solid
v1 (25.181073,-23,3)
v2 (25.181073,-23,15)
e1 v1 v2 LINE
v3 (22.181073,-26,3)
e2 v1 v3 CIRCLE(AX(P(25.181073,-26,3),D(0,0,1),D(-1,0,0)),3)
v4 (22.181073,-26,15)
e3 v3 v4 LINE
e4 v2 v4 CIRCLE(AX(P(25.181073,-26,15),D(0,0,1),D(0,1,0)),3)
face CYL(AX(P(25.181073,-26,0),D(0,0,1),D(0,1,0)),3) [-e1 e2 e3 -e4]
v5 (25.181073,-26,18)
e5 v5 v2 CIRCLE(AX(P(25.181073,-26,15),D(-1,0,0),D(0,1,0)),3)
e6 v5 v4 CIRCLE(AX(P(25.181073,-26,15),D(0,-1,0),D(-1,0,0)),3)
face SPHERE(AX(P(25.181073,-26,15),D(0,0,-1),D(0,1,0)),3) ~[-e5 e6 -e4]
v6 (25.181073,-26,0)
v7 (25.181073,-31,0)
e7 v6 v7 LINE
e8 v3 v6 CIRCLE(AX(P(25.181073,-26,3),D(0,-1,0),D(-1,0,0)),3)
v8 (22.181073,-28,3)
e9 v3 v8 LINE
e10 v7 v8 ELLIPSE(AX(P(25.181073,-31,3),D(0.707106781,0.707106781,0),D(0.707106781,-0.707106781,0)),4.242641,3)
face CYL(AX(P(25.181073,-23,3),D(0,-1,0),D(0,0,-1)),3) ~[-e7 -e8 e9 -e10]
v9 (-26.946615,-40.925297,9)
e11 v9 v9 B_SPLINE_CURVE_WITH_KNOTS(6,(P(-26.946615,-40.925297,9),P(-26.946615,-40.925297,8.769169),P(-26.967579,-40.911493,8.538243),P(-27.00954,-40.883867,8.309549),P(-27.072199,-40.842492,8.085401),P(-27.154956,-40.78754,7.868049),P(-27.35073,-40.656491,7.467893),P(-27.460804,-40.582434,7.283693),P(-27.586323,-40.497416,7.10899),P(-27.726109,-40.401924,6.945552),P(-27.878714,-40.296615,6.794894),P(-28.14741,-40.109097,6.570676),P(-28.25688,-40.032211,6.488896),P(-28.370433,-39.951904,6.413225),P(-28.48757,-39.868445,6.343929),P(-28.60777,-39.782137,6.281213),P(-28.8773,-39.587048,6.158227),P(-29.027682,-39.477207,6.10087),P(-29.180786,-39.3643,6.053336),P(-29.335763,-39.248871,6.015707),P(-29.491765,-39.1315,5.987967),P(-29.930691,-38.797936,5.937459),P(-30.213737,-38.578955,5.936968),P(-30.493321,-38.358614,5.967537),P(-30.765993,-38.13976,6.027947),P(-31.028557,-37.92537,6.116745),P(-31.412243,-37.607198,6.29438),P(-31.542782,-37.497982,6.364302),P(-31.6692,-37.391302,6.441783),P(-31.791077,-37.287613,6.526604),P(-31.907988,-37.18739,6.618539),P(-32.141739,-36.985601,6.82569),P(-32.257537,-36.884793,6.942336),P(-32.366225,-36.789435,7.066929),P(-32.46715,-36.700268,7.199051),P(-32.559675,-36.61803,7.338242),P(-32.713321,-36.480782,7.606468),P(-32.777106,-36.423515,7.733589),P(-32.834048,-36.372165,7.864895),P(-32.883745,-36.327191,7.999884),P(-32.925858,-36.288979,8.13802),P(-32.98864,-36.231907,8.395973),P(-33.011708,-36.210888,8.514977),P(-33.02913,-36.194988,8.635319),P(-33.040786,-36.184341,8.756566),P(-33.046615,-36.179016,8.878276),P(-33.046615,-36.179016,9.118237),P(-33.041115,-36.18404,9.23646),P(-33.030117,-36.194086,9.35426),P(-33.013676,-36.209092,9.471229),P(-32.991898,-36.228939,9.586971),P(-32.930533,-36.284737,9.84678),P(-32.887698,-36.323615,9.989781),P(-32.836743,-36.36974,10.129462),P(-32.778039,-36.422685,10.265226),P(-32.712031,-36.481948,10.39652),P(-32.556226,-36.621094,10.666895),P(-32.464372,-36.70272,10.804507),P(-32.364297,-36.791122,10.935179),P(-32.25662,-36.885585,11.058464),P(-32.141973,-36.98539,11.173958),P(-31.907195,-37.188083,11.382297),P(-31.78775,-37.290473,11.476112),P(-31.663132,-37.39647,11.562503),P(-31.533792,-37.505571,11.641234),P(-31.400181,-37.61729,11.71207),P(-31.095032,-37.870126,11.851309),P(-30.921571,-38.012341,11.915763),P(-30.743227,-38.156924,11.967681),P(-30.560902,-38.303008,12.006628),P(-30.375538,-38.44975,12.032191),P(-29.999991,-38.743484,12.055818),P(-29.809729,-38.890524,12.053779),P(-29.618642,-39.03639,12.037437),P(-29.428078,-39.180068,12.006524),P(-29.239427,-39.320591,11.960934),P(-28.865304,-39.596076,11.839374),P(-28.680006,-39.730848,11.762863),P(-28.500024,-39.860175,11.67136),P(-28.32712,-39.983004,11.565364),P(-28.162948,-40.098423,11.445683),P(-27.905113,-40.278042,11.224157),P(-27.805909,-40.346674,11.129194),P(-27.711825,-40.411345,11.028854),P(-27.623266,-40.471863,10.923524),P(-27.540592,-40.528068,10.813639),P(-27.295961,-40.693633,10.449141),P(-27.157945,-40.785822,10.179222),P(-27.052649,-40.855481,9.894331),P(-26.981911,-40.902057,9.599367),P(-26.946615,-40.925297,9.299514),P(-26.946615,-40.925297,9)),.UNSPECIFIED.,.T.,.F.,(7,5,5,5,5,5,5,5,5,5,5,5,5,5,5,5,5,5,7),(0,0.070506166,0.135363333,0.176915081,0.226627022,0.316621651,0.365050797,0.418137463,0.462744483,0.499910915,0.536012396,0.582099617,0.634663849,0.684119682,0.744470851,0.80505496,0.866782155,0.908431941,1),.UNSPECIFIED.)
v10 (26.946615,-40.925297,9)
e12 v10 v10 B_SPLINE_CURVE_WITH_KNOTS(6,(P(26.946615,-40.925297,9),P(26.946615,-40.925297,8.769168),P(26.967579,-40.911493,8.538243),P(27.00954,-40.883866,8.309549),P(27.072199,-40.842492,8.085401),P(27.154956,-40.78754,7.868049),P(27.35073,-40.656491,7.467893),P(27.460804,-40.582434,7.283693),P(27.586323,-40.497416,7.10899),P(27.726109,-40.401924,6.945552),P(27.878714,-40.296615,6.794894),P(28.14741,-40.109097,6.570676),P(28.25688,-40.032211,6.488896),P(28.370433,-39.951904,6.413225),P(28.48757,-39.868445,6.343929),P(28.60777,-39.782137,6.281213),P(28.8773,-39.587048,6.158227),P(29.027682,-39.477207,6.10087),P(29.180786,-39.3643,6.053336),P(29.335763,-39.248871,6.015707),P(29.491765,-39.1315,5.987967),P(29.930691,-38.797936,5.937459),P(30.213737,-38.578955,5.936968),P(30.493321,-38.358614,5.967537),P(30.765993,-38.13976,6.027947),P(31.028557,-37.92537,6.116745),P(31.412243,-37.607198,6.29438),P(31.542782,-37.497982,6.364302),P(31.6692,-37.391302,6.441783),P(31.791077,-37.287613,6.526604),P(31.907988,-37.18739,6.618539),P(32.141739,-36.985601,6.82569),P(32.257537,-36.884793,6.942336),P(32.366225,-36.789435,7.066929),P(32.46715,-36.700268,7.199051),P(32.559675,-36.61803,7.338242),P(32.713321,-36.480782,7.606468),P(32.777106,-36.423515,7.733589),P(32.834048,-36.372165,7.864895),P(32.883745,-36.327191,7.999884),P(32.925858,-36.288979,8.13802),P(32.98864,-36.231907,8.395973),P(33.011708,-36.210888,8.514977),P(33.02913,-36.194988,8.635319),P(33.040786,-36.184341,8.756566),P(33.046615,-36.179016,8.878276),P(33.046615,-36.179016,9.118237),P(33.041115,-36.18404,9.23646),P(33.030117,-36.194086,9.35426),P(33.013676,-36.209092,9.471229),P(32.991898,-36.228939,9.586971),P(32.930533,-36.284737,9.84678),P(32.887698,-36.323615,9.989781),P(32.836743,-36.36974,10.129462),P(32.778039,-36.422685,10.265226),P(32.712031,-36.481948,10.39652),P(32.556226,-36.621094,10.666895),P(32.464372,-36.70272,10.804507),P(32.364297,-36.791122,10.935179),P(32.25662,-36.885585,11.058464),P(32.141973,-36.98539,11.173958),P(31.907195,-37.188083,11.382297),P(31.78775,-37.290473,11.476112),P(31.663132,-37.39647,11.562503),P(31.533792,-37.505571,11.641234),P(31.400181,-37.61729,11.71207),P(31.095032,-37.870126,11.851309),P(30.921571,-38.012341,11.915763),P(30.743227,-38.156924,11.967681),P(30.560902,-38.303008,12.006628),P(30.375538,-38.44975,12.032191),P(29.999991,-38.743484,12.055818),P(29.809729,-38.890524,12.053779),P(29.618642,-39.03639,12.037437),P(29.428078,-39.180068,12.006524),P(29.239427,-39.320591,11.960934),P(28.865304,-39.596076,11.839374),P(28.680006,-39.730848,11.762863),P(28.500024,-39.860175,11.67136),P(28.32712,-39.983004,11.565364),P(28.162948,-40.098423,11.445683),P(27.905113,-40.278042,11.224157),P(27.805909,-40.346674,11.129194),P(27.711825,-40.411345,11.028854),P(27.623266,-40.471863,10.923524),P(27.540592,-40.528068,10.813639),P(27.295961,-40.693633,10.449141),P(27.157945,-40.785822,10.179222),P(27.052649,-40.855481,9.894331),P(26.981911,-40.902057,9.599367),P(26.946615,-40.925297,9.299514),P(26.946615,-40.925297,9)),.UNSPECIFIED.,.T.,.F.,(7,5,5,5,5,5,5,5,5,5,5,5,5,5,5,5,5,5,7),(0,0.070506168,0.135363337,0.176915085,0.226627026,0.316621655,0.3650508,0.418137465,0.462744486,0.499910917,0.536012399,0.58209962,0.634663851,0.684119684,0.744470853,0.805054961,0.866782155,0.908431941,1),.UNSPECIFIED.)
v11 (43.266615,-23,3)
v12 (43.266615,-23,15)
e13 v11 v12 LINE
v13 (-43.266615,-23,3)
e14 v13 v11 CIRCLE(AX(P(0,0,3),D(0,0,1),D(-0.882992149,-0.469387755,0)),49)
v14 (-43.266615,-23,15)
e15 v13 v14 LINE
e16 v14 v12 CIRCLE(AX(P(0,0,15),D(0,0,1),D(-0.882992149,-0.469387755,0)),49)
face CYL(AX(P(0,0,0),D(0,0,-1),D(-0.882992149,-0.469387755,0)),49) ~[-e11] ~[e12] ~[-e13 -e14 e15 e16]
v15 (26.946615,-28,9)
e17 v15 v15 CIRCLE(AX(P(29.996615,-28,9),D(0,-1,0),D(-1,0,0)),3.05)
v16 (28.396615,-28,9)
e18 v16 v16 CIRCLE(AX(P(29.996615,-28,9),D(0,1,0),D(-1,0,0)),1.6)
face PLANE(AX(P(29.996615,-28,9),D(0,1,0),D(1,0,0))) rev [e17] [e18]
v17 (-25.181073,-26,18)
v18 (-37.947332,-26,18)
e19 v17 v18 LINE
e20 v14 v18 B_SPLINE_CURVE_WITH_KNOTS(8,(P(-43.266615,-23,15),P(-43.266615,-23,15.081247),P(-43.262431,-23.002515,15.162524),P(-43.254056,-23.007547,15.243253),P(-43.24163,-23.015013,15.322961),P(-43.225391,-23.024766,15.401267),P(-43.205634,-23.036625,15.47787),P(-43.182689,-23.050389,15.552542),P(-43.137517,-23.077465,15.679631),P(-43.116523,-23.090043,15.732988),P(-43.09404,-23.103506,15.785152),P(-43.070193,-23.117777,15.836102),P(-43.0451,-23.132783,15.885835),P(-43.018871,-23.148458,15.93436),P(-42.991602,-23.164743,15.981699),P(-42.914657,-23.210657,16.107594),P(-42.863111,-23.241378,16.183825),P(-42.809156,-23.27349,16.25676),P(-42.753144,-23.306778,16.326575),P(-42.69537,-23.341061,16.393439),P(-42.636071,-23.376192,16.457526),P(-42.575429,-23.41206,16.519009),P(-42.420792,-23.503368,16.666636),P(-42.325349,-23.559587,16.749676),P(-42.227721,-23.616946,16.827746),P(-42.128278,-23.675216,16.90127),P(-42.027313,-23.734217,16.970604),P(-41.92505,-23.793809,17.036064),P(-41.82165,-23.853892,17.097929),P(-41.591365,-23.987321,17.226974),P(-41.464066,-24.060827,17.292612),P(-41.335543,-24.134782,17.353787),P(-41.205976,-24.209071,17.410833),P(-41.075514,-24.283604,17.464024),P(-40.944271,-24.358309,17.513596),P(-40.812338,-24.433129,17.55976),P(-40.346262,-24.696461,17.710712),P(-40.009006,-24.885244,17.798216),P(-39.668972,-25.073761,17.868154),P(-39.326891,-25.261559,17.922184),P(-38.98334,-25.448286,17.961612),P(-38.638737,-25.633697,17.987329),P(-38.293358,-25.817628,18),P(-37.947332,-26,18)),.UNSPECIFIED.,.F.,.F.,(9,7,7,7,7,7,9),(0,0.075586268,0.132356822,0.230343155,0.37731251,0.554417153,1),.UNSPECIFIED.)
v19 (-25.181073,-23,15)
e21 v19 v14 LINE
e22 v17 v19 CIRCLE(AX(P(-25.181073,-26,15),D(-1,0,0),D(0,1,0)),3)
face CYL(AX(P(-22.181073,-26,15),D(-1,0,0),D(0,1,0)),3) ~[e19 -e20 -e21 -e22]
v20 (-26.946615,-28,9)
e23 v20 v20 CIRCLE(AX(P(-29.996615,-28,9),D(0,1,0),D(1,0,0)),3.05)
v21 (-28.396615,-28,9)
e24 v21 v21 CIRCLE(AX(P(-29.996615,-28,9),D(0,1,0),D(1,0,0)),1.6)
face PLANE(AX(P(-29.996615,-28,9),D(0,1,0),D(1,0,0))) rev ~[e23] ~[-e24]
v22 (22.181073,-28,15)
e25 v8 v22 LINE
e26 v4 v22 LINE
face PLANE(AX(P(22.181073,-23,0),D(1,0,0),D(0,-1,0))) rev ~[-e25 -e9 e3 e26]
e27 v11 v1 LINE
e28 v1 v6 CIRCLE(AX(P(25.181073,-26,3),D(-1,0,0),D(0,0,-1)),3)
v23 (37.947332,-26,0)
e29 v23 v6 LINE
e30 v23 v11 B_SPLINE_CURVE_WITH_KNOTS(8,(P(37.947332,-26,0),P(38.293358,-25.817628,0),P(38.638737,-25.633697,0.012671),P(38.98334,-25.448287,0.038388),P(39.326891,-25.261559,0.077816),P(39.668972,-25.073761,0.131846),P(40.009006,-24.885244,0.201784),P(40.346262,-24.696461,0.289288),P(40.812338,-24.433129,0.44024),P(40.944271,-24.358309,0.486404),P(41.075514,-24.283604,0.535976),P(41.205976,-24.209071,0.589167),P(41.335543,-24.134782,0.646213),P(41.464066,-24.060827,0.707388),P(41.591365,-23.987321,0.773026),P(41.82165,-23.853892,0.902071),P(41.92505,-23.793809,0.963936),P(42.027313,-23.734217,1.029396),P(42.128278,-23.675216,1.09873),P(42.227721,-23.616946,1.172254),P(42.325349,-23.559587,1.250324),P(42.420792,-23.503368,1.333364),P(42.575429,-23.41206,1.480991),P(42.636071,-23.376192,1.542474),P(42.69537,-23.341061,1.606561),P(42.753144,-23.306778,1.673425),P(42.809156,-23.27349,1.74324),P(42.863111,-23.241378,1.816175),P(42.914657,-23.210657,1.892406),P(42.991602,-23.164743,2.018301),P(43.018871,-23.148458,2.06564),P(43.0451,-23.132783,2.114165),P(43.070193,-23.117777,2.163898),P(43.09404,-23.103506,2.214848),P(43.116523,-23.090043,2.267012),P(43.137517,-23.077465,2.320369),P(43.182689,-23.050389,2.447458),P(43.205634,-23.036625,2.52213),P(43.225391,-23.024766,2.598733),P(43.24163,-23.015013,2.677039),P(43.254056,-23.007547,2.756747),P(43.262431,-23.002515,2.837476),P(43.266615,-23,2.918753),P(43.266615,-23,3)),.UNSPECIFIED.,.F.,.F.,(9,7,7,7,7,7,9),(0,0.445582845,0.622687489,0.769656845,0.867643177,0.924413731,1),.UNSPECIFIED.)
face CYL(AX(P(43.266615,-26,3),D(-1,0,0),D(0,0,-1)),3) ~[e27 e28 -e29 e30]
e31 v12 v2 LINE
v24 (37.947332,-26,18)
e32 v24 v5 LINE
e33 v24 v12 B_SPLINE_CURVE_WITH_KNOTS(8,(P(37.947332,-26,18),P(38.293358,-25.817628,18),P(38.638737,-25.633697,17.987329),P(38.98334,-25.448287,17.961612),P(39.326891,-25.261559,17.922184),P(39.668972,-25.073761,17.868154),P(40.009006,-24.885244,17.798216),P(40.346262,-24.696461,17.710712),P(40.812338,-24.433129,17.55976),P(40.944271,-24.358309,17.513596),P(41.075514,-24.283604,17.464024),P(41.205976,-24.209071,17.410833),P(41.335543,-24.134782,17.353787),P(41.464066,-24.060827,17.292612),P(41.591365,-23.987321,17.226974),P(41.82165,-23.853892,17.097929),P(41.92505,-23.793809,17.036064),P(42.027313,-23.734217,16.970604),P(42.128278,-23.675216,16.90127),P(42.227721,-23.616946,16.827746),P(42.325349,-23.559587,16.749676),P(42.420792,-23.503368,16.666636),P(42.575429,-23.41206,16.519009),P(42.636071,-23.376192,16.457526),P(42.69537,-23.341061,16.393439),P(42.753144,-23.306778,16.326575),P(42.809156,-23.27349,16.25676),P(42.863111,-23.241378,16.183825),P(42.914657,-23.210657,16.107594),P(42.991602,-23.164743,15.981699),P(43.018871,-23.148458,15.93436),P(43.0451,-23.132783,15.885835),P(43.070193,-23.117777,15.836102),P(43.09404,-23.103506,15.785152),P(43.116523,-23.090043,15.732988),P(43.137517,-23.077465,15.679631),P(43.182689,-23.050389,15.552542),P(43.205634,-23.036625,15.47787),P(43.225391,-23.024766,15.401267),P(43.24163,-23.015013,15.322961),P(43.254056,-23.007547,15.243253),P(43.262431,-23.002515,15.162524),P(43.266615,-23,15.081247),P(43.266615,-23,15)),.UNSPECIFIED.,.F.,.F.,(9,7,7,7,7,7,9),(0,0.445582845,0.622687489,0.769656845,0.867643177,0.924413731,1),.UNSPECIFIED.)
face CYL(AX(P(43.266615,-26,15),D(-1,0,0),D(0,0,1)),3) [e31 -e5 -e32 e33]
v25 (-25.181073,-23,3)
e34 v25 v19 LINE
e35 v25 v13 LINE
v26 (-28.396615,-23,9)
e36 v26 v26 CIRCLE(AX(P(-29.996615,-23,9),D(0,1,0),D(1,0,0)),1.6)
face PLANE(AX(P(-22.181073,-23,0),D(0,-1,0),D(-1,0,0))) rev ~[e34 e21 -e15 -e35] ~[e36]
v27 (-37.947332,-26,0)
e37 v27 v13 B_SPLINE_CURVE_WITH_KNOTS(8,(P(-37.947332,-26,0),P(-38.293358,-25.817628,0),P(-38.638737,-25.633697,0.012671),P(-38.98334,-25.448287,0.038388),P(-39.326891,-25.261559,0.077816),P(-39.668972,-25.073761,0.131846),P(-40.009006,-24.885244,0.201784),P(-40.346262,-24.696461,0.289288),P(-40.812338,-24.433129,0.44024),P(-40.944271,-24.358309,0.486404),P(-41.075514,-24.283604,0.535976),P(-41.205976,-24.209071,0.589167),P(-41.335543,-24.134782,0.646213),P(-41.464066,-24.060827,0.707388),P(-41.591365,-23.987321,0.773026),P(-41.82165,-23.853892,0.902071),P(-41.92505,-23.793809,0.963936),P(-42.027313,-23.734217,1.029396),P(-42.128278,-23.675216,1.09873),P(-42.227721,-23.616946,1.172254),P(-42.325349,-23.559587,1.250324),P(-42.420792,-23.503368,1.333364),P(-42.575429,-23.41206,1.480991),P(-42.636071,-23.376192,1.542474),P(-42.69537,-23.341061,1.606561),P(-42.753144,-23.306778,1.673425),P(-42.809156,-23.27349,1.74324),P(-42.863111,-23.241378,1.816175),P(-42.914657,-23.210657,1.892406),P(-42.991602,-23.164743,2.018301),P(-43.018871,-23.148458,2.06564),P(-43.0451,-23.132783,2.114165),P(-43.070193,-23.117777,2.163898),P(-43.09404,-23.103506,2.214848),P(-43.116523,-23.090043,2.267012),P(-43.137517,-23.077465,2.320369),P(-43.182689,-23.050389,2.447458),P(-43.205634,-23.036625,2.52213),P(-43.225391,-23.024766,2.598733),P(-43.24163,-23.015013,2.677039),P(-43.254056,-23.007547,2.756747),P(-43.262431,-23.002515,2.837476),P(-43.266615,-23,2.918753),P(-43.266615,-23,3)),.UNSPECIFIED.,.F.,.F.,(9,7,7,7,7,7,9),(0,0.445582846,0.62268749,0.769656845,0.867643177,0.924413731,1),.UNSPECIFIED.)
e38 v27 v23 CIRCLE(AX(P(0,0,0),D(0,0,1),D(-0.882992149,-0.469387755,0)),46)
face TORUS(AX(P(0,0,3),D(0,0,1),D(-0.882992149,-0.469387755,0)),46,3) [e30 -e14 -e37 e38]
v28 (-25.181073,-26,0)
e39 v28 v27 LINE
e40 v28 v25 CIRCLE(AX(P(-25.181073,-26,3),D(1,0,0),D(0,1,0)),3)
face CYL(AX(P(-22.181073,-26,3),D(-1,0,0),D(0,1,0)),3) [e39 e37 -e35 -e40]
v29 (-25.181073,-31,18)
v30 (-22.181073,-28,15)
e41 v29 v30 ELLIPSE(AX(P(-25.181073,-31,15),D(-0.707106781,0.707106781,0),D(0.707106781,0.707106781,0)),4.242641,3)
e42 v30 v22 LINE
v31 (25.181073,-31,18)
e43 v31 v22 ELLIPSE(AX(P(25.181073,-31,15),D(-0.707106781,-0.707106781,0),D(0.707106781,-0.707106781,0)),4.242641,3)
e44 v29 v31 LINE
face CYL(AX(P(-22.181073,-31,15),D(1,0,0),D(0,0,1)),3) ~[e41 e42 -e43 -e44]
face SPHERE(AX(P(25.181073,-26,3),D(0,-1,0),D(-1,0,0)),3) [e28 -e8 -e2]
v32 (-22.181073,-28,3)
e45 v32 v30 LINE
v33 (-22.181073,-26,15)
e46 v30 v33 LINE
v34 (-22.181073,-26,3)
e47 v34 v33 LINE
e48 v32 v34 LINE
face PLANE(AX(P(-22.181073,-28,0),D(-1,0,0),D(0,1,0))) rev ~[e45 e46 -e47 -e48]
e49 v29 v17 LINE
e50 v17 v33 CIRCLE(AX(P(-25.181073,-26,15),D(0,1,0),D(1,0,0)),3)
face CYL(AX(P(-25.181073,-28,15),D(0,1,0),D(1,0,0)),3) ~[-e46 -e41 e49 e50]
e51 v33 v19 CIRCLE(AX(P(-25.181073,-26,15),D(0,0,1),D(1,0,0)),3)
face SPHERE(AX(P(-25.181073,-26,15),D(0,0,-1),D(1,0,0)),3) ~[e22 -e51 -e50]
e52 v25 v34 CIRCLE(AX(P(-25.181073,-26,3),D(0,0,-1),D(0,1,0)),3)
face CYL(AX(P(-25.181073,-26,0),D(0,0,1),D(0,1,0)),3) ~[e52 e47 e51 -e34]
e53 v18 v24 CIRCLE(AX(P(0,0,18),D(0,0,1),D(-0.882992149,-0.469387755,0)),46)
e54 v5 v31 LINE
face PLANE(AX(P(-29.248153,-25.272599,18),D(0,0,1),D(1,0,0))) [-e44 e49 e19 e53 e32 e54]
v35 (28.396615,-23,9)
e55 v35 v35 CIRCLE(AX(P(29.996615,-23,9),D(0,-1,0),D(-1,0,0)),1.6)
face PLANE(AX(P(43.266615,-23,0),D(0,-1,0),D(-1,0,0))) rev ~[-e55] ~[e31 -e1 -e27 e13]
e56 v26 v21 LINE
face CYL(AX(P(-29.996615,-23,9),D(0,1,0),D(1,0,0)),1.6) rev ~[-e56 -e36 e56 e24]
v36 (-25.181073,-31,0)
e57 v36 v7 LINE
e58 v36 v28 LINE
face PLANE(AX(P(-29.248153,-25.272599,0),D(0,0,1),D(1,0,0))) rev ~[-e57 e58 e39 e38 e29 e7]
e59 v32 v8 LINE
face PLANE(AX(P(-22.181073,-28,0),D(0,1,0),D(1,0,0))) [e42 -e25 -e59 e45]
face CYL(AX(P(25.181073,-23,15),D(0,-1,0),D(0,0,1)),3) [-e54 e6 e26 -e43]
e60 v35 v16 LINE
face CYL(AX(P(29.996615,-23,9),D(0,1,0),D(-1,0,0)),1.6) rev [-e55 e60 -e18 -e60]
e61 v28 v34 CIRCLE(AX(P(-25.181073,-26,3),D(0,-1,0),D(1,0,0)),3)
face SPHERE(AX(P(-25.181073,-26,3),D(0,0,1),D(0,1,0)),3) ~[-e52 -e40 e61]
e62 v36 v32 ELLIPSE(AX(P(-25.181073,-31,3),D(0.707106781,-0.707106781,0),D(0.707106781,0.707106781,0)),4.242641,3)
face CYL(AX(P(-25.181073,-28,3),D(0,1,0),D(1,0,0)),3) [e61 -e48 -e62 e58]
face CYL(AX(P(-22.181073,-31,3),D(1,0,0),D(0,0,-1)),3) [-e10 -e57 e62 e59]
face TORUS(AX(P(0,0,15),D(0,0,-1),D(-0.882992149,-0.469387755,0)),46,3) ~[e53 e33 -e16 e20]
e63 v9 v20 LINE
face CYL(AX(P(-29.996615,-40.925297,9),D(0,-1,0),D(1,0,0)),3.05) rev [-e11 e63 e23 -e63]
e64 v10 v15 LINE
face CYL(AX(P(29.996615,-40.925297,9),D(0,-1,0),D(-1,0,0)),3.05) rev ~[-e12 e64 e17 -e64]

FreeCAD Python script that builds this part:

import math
import FreeCAD as App
import Part
import Sketcher


def edges_at(feature, points):
    """Names of the edges that pass closest to the given points."""
    edges = feature.Shape.Edges
    near = lambda p: min(range(len(edges)), key=lambda i: edges[i].distToShape(Part.Vertex(*p))[0])
    return sorted({f"Edge{near(p) + 1}" for p in points})

doc = App.newDocument("Part")
body = doc.addObject("PartDesign::Body", "Body")

sketch1 = body.newObject("Sketcher::SketchObject", "Sketch")
sketch1.AttachmentSupport = (doc.getObject("XY_Plane"), [""])
sketch1.MapMode = "FlatFace"
sketch1.addGeometry([
    Part.LineSegment(App.Vector(-22, -23, 0), App.Vector(-43, -23, 0)),
    Part.ArcOfCircle(Part.Circle(App.Vector(0, 0, 0), App.Vector(0, 0, 1), 49), math.radians(-152), math.radians(-28)),
    Part.LineSegment(App.Vector(43, -23, 0), App.Vector(22, -23, 0)),
    Part.LineSegment(App.Vector(22, -23, 0), App.Vector(22, -28, 0)),
    Part.LineSegment(App.Vector(22, -28, 0), App.Vector(-22, -28, 0)),
    Part.LineSegment(App.Vector(-22, -28, 0), App.Vector(-22, -23, 0)),
], False)
sketch1.addConstraint([
    Sketcher.Constraint("Coincident", 0, 2, 1, 1),
    Sketcher.Constraint("Coincident", 1, 2, 2, 1),
    Sketcher.Constraint("Coincident", 2, 2, 3, 1),
    Sketcher.Constraint("Coincident", 3, 2, 4, 1),
    Sketcher.Constraint("Coincident", 4, 2, 5, 1),
    Sketcher.Constraint("Coincident", 5, 2, 0, 1),
    Sketcher.Constraint("Horizontal", 0),
    Sketcher.Constraint("Horizontal", 2),
    Sketcher.Constraint("Vertical", 3),
    Sketcher.Constraint("Horizontal", 4),
    Sketcher.Constraint("Vertical", 5),
    Sketcher.Constraint("Coincident", 1, 3, -1, 1),
    Sketcher.Constraint("Symmetric", 2, 2, 5, 2, -2),
    Sketcher.Constraint("Radius", 1, 49.0),
    Sketcher.Constraint("DistanceY", 3, 2, 3, 1, 5.0),
    Sketcher.Constraint("DistanceY", 0, 2, -1, 1, 23.0),
    Sketcher.Constraint("DistanceX", 0, 2, 0, 1, 21.085542),
])
pad1 = body.newObject("PartDesign::Pad", "Pad")
pad1.Profile = sketch1
pad1.Length = 18

sketch2 = body.newObject("Sketcher::SketchObject", "Sketch001")
sketch2.AttachmentSupport = (doc.getObject("XZ_Plane"), [""])
sketch2.MapMode = "FlatFace"
sketch2.AttachmentOffset = App.Placement(App.Vector(0, 0, 23), App.Rotation())
sketch2.addGeometry(Part.Circle(App.Vector(-30, 9, 0), App.Vector(0, 0, 1), 1.6), False)
sketch2.addConstraint([
    Sketcher.Constraint("Diameter", 0, 3.2),
    Sketcher.Constraint("DistanceY", -1, 1, 0, 3, 9.0),
    Sketcher.Constraint("DistanceX", 0, 3, -1, 1, 29.996615),
])
pocket1 = body.newObject("PartDesign::Pocket", "Pocket")
pocket1.Profile = sketch2
pocket1.Type = "ThroughAll"
pocket1.Reversed = True

sketch3 = body.newObject("Sketcher::SketchObject", "Sketch002")
sketch3.AttachmentSupport = (doc.getObject("XZ_Plane"), [""])
sketch3.MapMode = "FlatFace"
sketch3.AttachmentOffset = App.Placement(App.Vector(0, 0, 40.925297), App.Rotation())
sketch3.addGeometry(Part.Circle(App.Vector(-30, 9, 0), App.Vector(0, 0, 1), 3), False)
sketch3.addConstraint([
    Sketcher.Constraint("Diameter", 0, 6.1),
    Sketcher.Constraint("DistanceY", -1, 1, 0, 3, 9.0),
    Sketcher.Constraint("DistanceX", 0, 3, -1, 1, 29.996615),
])
pocket2 = body.newObject("PartDesign::Pocket", "Pocket001")
pocket2.Profile = sketch3
pocket2.Length = 12.925297
doc.recompute()

mirrored = body.newObject("PartDesign::Mirrored", "Mirrored")
mirrored.Originals = [pocket1, pocket2]
mirrored.MirrorPlane = (doc.getObject("YZ_Plane"), [""])
body.Tip = mirrored
doc.recompute()

fillet = body.newObject("PartDesign::Fillet", "Fillet")
fillet.Base = (mirrored, edges_at(mirrored, [
    (0, -28, 18),
    (0, -28, 0),
    (22.181, -25.5, 0),
    (22.181, -23, 9),
    (-22.181, -23, 9),
    (-22.181, -25.5, 18),
    (-32.724, -23, 18),
    (0, -49, 18),
    (32.724, -23, 18),
    (22.181, -25.5, 18),
    (32.724, -23, 0),
    (0, -49, 0),
    (-32.724, -23, 0),
    (-22.181, -25.5, 0),
]))
fillet.Radius = 3

doc.recompute()
